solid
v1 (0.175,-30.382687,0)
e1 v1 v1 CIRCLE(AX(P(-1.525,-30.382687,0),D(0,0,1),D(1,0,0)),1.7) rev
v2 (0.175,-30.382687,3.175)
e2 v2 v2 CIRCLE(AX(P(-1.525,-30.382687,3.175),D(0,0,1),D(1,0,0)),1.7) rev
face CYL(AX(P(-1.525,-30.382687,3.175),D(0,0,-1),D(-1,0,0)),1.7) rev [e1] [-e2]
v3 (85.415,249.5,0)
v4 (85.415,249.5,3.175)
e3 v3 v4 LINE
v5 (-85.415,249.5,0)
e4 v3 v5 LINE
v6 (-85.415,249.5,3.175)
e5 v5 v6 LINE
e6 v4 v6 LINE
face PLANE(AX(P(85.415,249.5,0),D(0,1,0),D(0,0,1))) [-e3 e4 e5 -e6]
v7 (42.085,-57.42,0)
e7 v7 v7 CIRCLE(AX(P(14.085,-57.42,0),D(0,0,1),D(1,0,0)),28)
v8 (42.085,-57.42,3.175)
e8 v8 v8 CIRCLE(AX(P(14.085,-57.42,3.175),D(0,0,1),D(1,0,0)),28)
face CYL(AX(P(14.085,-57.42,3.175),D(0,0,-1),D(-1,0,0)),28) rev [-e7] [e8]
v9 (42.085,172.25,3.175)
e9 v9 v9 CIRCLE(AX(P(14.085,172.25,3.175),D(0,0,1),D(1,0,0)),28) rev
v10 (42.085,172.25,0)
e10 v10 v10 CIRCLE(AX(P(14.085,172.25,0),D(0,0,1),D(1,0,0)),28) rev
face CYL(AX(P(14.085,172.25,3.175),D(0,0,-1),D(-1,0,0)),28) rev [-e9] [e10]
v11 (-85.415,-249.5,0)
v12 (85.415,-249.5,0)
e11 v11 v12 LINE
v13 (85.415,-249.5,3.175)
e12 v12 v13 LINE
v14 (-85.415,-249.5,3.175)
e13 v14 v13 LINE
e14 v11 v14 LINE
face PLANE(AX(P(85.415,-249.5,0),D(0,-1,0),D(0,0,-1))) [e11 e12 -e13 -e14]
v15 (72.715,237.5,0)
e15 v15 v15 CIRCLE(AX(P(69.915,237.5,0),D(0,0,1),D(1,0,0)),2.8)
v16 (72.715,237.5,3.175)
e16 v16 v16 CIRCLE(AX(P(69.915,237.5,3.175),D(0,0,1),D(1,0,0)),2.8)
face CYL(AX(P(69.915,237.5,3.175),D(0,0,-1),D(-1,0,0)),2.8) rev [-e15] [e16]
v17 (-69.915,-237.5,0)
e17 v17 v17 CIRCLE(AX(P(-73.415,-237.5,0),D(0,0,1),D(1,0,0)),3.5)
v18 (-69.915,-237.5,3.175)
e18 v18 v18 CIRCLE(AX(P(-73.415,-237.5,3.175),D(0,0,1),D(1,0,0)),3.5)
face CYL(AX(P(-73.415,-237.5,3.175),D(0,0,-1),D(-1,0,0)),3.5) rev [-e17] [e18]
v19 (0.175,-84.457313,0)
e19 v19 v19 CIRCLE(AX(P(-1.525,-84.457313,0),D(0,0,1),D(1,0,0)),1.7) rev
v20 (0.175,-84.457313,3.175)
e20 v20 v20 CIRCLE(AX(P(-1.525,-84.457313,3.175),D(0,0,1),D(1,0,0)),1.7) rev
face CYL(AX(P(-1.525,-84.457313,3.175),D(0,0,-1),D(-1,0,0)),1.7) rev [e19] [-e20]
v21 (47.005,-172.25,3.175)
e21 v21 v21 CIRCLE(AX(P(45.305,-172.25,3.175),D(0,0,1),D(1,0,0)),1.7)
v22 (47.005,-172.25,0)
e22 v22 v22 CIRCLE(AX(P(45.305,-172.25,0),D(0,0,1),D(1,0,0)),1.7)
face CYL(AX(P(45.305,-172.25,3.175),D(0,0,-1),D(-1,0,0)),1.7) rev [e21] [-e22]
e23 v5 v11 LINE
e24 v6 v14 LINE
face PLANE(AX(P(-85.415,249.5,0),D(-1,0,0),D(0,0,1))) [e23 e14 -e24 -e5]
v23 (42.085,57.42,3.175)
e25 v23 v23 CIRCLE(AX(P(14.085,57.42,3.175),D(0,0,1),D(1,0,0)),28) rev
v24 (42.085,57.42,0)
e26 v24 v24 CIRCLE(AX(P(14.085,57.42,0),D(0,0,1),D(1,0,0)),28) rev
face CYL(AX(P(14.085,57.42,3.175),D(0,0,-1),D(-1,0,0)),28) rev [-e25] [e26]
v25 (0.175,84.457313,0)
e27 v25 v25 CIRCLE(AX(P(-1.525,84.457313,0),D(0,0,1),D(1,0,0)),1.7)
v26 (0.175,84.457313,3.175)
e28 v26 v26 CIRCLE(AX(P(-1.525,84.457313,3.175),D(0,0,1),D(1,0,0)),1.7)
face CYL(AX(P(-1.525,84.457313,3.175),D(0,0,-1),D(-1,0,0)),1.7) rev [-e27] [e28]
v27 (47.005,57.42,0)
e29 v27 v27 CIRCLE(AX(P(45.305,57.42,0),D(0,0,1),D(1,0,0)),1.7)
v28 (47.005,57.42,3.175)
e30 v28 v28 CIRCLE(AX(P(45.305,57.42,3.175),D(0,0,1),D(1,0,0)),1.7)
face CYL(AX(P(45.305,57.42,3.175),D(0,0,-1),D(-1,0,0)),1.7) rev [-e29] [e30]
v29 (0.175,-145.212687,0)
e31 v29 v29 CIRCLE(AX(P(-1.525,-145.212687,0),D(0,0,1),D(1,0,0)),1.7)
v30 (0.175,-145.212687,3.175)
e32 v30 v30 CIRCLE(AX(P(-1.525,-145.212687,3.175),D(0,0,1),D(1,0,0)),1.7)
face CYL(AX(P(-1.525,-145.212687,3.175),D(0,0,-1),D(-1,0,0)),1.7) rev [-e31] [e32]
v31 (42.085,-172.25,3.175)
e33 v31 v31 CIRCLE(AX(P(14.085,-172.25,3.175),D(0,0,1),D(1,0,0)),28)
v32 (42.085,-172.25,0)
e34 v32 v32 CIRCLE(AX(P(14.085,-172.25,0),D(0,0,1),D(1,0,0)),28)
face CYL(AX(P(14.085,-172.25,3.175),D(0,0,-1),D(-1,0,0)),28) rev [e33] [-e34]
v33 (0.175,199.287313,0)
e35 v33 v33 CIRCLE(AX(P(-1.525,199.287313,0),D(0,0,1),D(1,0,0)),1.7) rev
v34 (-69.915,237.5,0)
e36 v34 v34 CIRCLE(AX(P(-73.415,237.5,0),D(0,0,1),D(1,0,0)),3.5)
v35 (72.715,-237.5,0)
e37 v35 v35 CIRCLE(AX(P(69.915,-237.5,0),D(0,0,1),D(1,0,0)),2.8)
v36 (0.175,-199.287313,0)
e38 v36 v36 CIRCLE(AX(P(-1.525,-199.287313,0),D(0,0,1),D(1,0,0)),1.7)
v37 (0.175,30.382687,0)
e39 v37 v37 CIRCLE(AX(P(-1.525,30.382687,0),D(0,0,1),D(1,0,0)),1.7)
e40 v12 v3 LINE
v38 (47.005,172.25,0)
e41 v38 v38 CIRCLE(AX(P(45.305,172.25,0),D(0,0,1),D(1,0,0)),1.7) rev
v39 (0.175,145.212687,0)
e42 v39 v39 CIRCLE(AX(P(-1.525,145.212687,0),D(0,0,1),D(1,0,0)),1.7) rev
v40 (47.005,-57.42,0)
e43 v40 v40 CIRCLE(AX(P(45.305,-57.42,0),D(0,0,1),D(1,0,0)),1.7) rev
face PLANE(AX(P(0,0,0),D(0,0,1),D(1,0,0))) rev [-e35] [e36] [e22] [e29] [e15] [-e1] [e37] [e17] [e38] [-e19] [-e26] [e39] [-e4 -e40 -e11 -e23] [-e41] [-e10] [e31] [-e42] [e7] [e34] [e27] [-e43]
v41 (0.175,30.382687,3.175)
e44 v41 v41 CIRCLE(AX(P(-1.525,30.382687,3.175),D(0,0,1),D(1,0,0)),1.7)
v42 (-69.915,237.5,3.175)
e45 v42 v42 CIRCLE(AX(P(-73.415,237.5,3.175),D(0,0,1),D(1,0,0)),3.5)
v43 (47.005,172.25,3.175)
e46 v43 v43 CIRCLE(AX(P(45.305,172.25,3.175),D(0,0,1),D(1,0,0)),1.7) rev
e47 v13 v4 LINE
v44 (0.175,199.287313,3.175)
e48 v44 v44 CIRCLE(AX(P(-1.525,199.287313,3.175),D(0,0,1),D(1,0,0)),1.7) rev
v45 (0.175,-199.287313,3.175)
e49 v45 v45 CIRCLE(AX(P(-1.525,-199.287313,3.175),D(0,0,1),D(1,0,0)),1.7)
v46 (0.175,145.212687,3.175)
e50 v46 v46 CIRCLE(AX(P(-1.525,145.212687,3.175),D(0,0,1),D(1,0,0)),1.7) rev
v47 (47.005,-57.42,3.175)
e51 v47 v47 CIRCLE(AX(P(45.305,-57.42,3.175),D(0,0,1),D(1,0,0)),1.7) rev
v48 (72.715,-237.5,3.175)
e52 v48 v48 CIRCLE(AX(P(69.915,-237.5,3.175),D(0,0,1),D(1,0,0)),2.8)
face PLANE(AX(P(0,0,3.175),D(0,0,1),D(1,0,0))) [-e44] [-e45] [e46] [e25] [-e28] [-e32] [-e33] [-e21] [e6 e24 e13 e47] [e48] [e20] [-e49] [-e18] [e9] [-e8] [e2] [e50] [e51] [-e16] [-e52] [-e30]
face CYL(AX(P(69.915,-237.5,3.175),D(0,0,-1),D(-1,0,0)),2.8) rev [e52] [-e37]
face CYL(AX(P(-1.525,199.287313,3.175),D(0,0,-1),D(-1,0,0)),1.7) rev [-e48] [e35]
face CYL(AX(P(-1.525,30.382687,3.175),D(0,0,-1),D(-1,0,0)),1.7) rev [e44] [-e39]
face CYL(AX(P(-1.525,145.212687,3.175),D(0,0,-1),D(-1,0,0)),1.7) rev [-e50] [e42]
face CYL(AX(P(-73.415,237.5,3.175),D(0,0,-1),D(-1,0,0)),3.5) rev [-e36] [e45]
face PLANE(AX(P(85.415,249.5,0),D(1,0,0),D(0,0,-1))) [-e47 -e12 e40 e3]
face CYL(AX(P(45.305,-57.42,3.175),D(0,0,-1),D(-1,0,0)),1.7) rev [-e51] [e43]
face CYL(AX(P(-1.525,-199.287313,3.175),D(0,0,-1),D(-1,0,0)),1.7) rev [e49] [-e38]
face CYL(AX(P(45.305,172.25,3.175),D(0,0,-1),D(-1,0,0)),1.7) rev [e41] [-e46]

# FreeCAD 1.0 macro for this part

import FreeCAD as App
import Part
import Sketcher
Q = App.Units.Quantity


def add_polygon(sketch, points):
    """Adds a closed chain of lines whose ends are joined by coincident constraints."""
    first, n = sketch.GeometryCount, len(points)
    for a, b in zip(points, points[1:] + points[:1]):
        sketch.addGeometry(Part.LineSegment(App.Vector(*a, 0), App.Vector(*b, 0)), False)
    for i in range(n):
        sketch.addConstraint(Sketcher.Constraint("Coincident", first + i, 2, first + (i + 1) % n, 1))

doc = App.newDocument("Part")
body = doc.addObject("PartDesign::Body", "Body")

# Sketch on XY plane
sketch1 = body.newObject("Sketcher::SketchObject", "Sketch")
sketch1.AttachmentSupport = (doc.getObject("XY_Plane"), [""])
sketch1.MapMode = "FlatFace"
add_polygon(sketch1, [(-85.9, -250), (85.9, -250), (85.9, 250), (-85.9, 250)])  # lines 0-3
sketch1.addGeometry(Part.Circle(App.Vector(69.9, -237.5, 0), App.Vector(0, 0, 1), 2.8), False)  # 4
sketch1.addGeometry(Part.Circle(App.Vector(45.3, -172.2, 0), App.Vector(0, 0, 1), 1.7), False)  # 5
sketch1.addGeometry(Part.Circle(App.Vector(45.3, -57.4, 0), App.Vector(0, 0, 1), 1.7), False)  # 6
sketch1.addGeometry(Part.Circle(App.Vector(-1.5, -199.3, 0), App.Vector(0, 0, 1), 1.7), False)  # 7
sketch1.addGeometry(Part.Circle(App.Vector(14.1, -172.2, 0), App.Vector(0, 0, 1), 28), False)  # 8
sketch1.addGeometry(Part.Circle(App.Vector(-1.5, -145.2, 0), App.Vector(0, 0, 1), 1.7), False)  # 9
sketch1.addGeometry(Part.Circle(App.Vector(-1.5, -84.5, 0), App.Vector(0, 0, 1), 1.7), False)  # 10
sketch1.addGeometry(Part.Circle(App.Vector(14.1, -57.4, 0), App.Vector(0, 0, 1), 28), False)  # 11
sketch1.addGeometry(Part.Circle(App.Vector(-1.5, -30.4, 0), App.Vector(0, 0, 1), 1.7), False)  # 12
sketch1.addGeometry(Part.Circle(App.Vector(45.3, 57.4, 0), App.Vector(0, 0, 1), 1.7), False)  # 13
sketch1.addGeometry(Part.Circle(App.Vector(69.9, 237.5, 0), App.Vector(0, 0, 1), 2.8), False)  # 14
sketch1.addGeometry(Part.Circle(App.Vector(45.3, 172.2, 0), App.Vector(0, 0, 1), 1.7), False)  # 15
sketch1.addGeometry(Part.Circle(App.Vector(14.1, 57.4, 0), App.Vector(0, 0, 1), 28), False)  # 16
sketch1.addGeometry(Part.Circle(App.Vector(-1.5, 30.4, 0), App.Vector(0, 0, 1), 1.7), False)  # 17
sketch1.addGeometry(Part.Circle(App.Vector(-1.5, 84.5, 0), App.Vector(0, 0, 1), 1.7), False)  # 18
sketch1.addGeometry(Part.Circle(App.Vector(14.1, 172.2, 0), App.Vector(0, 0, 1), 28), False)  # 19
sketch1.addGeometry(Part.Circle(App.Vector(-1.5, 145.2, 0), App.Vector(0, 0, 1), 1.7), False)  # 20
sketch1.addGeometry(Part.Circle(App.Vector(-1.5, 199.3, 0), App.Vector(0, 0, 1), 1.7), False)  # 21
sketch1.addGeometry(Part.Circle(App.Vector(-73.4, -237.5, 0), App.Vector(0, 0, 1), 3.5), False)  # 22
sketch1.addGeometry(Part.Circle(App.Vector(-73.4, 237.5, 0), App.Vector(0, 0, 1), 3.5), False)  # 23
sketch1.addConstraint([
    Sketcher.Constraint("Horizontal", 0),
    Sketcher.Constraint("Vertical", 1),
    Sketcher.Constraint("Horizontal", 2),
    Sketcher.Constraint("Vertical", 3),
    Sketcher.Constraint("Equal", 5, 6),
    Sketcher.Constraint("Equal", 6, 7),
    Sketcher.Constraint("Equal", 7, 9),
    Sketcher.Constraint("Equal", 9, 10),
    Sketcher.Constraint("Equal", 8, 11),
    Sketcher.Constraint("Equal", 10, 12),
    Sketcher.Constraint("Equal", 12, 13),
    Sketcher.Constraint("Equal", 4, 14),
    Sketcher.Constraint("Equal", 13, 15),
    Sketcher.Constraint("Equal", 11, 16),
    Sketcher.Constraint("Equal", 15, 17),
    Sketcher.Constraint("Equal", 17, 18),
    Sketcher.Constraint("Equal", 16, 19),
    Sketcher.Constraint("Equal", 18, 20),
    Sketcher.Constraint("Equal", 20, 21),
    Sketcher.Constraint("Equal", 22, 23),
    Sketcher.Constraint("Symmetric", 0, 2, 2, 2, -1, 1),
    Sketcher.Constraint("Symmetric", 6, 3, 13, 3, -1),
    Sketcher.Constraint("Symmetric", 4, 3, 14, 3, -1),
    Sketcher.Constraint("Symmetric", 5, 3, 15, 3, -1),
    Sketcher.Constraint("Symmetric", 11, 3, 16, 3, -1),
    Sketcher.Constraint("Symmetric", 12, 3, 17, 3, -1),
    Sketcher.Constraint("Symmetric", 10, 3, 18, 3, -1),
    Sketcher.Constraint("Symmetric", 8, 3, 19, 3, -1),
    Sketcher.Constraint("Symmetric", 9, 3, 20, 3, -1),
    Sketcher.Constraint("Symmetric", 7, 3, 21, 3, -1),
    Sketcher.Constraint("Symmetric", 22, 3, 23, 3, -1),
    Sketcher.Constraint("Horizontal", 5, 3, 8, 3),
    Sketcher.Constraint("Horizontal", 6, 3, 11, 3),
    Sketcher.Constraint("Horizontal", 4, 3, 22, 3),
    Sketcher.Constraint("Vertical", 5, 3, 6, 3),
    Sketcher.Constraint("Vertical", 7, 3, 9, 3),
    Sketcher.Constraint("Vertical", 9, 3, 10, 3),
    Sketcher.Constraint("Vertical", 8, 3, 11, 3),
    Sketcher.Constraint("Vertical", 10, 3, 12, 3),
    Sketcher.Constraint("Diameter", 8, Q("56 mm")),
    Sketcher.Constraint("Diameter", 22, Q("7 mm")),
    Sketcher.Constraint("Diameter", 4, Q("5.6 mm")),
    Sketcher.Constraint("Diameter", 5, Q("3.4 mm")),
    Sketcher.Constraint("DistanceY", 1, 1, 1, 2, Q("500 mm")),
    Sketcher.Constraint("DistanceX", 4, 3, 0, 2, Q("16 mm")),
    Sketcher.Constraint("DistanceX", 2, 2, 19, 3, Q("100 mm")),
    Sketcher.Constraint("DistanceX", 0, 1, 0, 2, Q("171.83 mm")),
    Sketcher.Constraint("DistanceY", 4, 3, -1, 1, Q("237.5 mm")),
    Sketcher.Constraint("DistanceX", 22, 3, 8, 3, Q("87.5 mm")),
    Sketcher.Constraint("DistanceY", 5, 3, -1, 1, Q("172.25 mm")),
    Sketcher.Constraint("DistanceY", 6, 3, -1, 1, Q("57.42 mm")),
    Sketcher.Constraint("DistanceX", 5, 3, 4, 3, Q("24.61 mm")),
    Sketcher.Constraint("DistanceX", 7, 3, 5, 3, Q("46.83 mm")),
    Sketcher.Constraint("DistanceY", 7, 3, 10, 3, Q("114.83 mm")),
    Sketcher.Constraint("DistanceY", 9, 3, 12, 3, Q("114.83 mm")),
    Sketcher.Constraint("DistanceY", 12, 3, 18, 3, Q("114.84 mm")),
    Sketcher.Constraint("DistanceY", 7, 3, -1, 1, Q("199.287313 mm")),
])
pad1 = body.newObject("PartDesign::Pad", "Pad")
pad1.Profile = sketch1
pad1.Length = 3.175

# Sketch on XY plane
sketch2 = body.newObject("Sketcher::SketchObject", "Sketch001")
sketch2.AttachmentSupport = (doc.getObject("XY_Plane"), [""])
sketch2.MapMode = "FlatFace"
sketch2.AttachmentOffset = App.Placement(App.Vector(0, 0, 3.175), App.Rotation())
add_polygon(sketch2, [(-86, 250), (-86, -250), (86, -250), (86, 250)])  # lines 0-3
add_polygon(sketch2, [(85, -250), (-85, -250), (-85, 250), (85, 250)])  # lines 4-7
sketch2.addConstraint([
    Sketcher.Constraint("Vertical", 0),
    Sketcher.Constraint("Horizontal", 1),
    Sketcher.Constraint("Vertical", 2),
    Sketcher.Constraint("Horizontal", 3),
    Sketcher.Constraint("Horizontal", 4),
    Sketcher.Constraint("Vertical", 5),
    Sketcher.Constraint("Horizontal", 6),
    Sketcher.Constraint("Vertical", 7),
    Sketcher.Constraint("Symmetric", 0, 2, 2, 2, -1, 1),
    Sketcher.Constraint("Symmetric", 4, 2, 6, 2, -1, 1),
    Sketcher.Constraint("DistanceY", 0, 2, 0, 1, Q("500 mm")),
    Sketcher.Constraint("DistanceY", 5, 1, 5, 2, Q("499 mm")),
    Sketcher.Constraint("DistanceX", 1, 1, 1, 2, Q("171.83 mm")),
    Sketcher.Constraint("DistanceX", 4, 2, 4, 1, Q("170.83 mm")),
])
pocket1 = body.newObject("PartDesign::Pocket", "Pocket")
pocket1.Profile = sketch2
pocket1.Length = 3.175

doc.recompute()
